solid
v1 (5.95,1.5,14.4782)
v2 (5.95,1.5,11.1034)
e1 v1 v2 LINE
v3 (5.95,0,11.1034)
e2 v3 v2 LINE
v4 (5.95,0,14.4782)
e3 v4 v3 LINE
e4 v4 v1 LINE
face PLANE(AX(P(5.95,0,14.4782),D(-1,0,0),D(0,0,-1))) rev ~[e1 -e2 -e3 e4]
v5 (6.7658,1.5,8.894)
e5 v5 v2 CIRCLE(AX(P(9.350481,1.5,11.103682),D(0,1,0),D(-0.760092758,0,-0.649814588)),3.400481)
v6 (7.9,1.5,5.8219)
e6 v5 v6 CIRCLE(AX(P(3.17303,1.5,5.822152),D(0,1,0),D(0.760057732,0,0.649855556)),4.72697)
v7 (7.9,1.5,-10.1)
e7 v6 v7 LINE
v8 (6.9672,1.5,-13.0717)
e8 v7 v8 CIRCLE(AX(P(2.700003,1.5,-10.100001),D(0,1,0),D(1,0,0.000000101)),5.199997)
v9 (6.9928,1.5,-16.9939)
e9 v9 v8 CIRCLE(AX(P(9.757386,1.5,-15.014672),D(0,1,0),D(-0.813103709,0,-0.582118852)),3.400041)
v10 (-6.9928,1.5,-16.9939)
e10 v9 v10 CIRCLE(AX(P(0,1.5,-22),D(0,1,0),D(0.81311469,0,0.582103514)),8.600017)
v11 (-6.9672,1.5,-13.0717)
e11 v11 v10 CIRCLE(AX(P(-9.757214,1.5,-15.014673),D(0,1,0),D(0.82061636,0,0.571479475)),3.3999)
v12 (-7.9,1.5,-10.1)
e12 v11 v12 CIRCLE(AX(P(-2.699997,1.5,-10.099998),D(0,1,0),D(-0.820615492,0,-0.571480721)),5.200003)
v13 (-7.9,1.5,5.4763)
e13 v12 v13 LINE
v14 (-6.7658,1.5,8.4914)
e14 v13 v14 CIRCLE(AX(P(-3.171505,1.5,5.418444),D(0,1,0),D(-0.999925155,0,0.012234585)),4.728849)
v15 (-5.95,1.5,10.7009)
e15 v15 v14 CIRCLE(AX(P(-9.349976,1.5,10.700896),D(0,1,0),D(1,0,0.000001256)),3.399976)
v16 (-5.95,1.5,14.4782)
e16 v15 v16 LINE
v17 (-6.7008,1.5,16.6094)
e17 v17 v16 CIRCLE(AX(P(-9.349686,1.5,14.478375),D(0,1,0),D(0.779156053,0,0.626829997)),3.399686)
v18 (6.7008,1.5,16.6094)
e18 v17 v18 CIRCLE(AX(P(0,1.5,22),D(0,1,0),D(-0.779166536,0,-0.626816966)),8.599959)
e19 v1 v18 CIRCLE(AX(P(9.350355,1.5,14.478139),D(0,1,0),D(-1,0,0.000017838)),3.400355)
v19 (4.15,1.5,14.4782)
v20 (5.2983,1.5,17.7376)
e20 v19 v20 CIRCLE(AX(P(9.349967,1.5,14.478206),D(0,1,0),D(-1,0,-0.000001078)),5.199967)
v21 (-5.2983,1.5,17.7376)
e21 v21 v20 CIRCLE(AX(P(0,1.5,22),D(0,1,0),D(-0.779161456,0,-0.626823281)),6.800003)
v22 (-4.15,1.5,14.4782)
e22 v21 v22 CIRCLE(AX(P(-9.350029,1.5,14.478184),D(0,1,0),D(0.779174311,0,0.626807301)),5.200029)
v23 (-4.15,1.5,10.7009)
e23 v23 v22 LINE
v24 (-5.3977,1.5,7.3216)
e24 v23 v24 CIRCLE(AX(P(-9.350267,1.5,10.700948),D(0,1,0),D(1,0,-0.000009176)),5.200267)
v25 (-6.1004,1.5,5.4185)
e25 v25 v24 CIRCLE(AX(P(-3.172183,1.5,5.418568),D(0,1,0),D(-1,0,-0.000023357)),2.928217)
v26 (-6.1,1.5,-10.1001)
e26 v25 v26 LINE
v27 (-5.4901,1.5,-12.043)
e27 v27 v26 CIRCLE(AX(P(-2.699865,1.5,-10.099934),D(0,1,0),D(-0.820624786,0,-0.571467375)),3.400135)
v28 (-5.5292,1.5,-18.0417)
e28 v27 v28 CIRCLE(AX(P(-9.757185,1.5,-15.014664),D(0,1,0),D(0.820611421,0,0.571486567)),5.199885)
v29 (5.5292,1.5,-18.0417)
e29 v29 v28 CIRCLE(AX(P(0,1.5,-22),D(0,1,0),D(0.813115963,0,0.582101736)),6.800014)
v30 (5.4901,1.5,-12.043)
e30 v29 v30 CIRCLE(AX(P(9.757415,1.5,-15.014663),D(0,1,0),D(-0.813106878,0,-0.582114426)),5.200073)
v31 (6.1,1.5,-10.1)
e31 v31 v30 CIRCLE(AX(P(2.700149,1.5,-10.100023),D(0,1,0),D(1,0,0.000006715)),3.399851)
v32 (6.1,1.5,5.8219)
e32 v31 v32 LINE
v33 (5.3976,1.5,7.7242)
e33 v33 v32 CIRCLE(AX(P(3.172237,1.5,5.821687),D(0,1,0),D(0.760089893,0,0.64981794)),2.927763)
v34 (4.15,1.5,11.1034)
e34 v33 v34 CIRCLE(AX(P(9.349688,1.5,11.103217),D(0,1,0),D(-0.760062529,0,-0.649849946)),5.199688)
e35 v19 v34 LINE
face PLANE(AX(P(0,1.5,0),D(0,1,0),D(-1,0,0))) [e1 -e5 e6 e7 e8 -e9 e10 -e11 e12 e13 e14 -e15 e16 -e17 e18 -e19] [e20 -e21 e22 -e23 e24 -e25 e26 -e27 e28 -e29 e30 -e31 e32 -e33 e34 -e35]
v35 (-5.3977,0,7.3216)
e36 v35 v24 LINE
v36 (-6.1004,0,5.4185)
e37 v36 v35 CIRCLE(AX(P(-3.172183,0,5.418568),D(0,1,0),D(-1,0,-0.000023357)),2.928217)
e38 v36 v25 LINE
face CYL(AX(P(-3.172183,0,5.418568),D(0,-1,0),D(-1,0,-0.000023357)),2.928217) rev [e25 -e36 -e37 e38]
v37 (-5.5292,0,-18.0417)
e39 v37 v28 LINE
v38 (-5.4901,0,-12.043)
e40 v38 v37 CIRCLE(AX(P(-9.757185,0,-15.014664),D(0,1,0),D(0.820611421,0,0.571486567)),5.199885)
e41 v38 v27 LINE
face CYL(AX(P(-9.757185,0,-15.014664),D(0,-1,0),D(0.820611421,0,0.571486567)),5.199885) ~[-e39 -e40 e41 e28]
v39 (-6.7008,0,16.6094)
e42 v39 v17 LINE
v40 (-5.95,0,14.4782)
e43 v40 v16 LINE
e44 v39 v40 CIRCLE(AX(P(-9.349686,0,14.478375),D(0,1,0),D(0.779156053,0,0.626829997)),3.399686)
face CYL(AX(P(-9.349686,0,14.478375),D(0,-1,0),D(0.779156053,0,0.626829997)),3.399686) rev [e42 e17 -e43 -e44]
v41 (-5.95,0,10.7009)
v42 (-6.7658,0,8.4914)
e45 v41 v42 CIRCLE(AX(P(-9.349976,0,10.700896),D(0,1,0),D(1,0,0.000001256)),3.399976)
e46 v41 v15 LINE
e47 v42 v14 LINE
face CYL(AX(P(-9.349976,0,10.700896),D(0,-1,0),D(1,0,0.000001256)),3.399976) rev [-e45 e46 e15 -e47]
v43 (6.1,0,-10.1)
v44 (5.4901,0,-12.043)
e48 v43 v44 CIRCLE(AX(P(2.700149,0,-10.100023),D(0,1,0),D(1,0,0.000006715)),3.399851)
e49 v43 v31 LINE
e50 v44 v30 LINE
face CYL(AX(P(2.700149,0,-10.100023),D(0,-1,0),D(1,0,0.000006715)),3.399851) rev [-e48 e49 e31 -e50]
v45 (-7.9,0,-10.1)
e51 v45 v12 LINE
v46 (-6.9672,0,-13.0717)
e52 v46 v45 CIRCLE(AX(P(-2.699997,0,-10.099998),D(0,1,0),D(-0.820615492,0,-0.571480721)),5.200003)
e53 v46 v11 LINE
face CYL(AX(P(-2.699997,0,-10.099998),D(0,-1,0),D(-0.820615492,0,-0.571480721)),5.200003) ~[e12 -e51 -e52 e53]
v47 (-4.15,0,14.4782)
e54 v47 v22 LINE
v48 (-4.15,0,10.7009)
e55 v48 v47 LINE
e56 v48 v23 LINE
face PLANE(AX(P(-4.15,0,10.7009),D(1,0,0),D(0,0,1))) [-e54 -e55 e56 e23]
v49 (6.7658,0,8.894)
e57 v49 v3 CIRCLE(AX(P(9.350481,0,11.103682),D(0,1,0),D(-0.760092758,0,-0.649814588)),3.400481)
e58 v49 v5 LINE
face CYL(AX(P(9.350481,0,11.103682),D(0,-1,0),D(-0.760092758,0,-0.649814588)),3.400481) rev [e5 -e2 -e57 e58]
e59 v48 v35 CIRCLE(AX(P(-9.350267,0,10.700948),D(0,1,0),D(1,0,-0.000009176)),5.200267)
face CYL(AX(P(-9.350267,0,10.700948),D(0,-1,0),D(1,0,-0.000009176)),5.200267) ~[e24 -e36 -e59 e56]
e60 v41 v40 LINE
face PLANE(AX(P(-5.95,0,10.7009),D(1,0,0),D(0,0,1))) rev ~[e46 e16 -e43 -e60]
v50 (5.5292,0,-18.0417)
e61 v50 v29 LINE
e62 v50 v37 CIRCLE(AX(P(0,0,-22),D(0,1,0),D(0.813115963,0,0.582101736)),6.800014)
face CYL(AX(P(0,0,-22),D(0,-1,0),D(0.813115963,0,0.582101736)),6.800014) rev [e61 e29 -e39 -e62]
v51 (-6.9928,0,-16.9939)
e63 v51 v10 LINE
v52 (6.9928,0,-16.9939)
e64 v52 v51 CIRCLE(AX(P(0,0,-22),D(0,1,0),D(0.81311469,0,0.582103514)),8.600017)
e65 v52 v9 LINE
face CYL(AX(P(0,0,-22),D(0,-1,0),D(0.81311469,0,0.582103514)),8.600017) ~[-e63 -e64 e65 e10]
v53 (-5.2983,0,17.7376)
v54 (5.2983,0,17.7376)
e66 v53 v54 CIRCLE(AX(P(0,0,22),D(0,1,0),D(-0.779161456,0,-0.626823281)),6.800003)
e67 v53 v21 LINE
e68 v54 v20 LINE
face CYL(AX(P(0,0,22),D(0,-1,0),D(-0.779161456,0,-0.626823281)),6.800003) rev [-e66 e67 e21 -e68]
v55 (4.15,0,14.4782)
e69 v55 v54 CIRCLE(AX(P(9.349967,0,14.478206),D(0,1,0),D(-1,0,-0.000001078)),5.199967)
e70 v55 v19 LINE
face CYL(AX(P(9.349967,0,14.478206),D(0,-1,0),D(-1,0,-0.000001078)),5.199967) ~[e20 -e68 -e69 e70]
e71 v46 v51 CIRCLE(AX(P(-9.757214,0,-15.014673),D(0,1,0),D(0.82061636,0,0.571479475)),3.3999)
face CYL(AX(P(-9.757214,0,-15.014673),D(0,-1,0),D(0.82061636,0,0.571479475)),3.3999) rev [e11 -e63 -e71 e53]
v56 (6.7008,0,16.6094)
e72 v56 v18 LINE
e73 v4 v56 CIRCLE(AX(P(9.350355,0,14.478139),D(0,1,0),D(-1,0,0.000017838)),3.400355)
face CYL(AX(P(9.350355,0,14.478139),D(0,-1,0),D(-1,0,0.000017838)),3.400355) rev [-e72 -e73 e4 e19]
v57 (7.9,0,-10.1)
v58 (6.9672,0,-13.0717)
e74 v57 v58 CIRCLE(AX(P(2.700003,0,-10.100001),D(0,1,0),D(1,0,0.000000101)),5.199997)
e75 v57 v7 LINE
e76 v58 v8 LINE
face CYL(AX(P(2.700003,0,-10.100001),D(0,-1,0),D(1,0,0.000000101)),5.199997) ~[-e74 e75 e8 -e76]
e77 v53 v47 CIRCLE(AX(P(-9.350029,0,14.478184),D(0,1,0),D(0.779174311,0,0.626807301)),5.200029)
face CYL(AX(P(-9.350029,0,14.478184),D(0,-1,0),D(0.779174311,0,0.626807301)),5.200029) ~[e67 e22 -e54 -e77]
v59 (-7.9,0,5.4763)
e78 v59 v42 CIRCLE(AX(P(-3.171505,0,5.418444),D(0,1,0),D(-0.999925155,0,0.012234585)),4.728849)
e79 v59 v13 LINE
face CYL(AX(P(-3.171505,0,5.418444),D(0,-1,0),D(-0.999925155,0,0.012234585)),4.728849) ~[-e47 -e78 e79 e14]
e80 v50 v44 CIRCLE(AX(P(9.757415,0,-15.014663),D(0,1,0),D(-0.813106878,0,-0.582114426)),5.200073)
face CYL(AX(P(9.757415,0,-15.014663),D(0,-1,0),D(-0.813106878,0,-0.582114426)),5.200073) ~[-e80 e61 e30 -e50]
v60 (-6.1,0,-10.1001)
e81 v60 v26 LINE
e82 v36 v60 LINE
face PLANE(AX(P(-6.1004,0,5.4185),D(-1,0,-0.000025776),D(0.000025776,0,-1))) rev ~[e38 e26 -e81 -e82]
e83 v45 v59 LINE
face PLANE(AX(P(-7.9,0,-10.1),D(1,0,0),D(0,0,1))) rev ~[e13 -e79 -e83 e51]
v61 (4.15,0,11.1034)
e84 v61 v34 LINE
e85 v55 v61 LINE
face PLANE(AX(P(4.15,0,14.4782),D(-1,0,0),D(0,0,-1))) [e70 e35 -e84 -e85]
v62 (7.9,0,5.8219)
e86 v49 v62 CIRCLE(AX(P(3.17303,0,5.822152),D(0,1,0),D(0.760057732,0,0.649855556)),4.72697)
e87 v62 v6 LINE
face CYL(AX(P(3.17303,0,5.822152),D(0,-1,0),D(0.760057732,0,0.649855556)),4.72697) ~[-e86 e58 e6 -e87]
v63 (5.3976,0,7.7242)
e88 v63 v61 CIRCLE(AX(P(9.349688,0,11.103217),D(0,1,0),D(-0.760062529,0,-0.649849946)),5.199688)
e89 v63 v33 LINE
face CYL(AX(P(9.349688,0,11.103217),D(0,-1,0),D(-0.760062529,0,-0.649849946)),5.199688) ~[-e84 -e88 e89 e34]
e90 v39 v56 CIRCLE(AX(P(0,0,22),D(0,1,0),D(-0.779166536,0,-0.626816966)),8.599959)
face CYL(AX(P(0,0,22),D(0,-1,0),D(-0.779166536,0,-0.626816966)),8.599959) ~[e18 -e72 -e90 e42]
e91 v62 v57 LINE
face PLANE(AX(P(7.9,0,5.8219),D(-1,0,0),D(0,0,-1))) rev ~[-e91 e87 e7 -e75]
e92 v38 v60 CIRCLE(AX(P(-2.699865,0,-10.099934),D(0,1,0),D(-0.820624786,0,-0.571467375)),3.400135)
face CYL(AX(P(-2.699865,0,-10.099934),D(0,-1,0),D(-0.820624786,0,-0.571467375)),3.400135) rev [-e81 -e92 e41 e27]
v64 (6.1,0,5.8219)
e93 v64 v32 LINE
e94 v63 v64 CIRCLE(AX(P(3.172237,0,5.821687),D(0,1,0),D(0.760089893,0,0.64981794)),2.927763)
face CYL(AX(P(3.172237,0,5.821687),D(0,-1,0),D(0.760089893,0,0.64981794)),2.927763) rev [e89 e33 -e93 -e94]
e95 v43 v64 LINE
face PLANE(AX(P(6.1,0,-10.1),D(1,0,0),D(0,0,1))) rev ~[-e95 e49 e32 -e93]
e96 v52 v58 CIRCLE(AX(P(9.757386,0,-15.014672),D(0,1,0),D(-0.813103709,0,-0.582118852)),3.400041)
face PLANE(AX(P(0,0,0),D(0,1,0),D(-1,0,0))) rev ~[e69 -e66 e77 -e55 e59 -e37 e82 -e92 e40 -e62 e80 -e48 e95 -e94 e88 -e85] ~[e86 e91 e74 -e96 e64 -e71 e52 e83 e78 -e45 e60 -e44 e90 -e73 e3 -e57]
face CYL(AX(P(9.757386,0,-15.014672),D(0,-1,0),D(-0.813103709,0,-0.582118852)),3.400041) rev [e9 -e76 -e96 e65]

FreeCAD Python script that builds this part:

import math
import FreeCAD as App
import Part
import Sketcher

V = App.Vector

doc = App.newDocument("Part")
body = doc.addObject("PartDesign::Body", "Body")

# Sketch on XZ plane
sketch1 = body.newObject("Sketcher::SketchObject", "Sketch")
sketch1.AttachmentSupport = (doc.getObject("XZ_Plane"), [""])
sketch1.MapMode = "FlatFace"
sketch1.addGeometry([
    Part.ArcOfCircle(Part.Circle(V(9.35, 14.4782, 0), V(0, 0, 1), 3.4), math.radians(141.184391), math.radians(180)),  # 0
    Part.LineSegment(V(5.95, 14.4782, 0), V(5.95, 11.1034, 0)),  # 1
    Part.ArcOfCircle(Part.Circle(V(9.35, 11.1034, 0), V(0, 0, 1), 3.399932), math.radians(180), math.radians(220.529277)),  # 2
    Part.ArcOfCircle(Part.Circle(V(3.1726, 5.8219, 0), V(0, 0, 1), 4.727461), math.radians(0), math.radians(40.52965)),  # 3
    Part.LineSegment(V(7.9, 5.8219, 0), V(7.9, -10.1, 0)),  # 4
    Part.ArcOfCircle(Part.Circle(V(2.7, -10.1, 0), V(0, 0, 1), 5.2), math.radians(-34.853551), math.radians(0)),  # 5
    Part.ArcOfCircle(Part.Circle(V(9.7573, -15.0147, 0), V(0, 0, 1), 3.399955), math.radians(145.147001), math.radians(215.60017)),  # 6
    Part.ArcOfCircle(Part.Circle(V(0, -22, 0), V(0, 0, 1), 8.600017), math.radians(144.401371), math.radians(395.598629)),  # 7
    Part.ArcOfCircle(Part.Circle(V(-9.7573, -15.0147, 0), V(0, 0, 1), 3.399986), math.radians(-35.60017), math.radians(34.852999)),  # 8
    Part.ArcOfCircle(Part.Circle(V(-2.7, -10.1, 0), V(0, 0, 1), 5.2), math.radians(180), math.radians(214.853551)),  # 9
    Part.LineSegment(V(-7.9, -10.1, 0), V(-7.9, 5.4763, 0)),  # 10
    Part.ArcOfCircle(Part.Circle(V(-3.1718, 5.4185, 0), V(0, 0, 1), 4.728553), math.radians(139.469281), math.radians(179.299621)),  # 11
    Part.ArcOfCircle(Part.Circle(V(-9.35, 10.7009, 0), V(0, 0, 1), 3.4), math.radians(-40.530558), math.radians(0)),  # 12
    Part.LineSegment(V(-5.95, 10.7009, 0), V(-5.95, 14.4782, 0)),  # 13
    Part.ArcOfCircle(Part.Circle(V(-9.35, 14.4782, 0), V(0, 0, 1), 3.40004), math.radians(0), math.radians(38.815609)),  # 14
    Part.ArcOfCircle(Part.Circle(V(0, 22, 0), V(0, 0, 1), 8.599959), math.radians(-38.815673), math.radians(218.815673)),  # 15
    Part.ArcOfCircle(Part.Circle(V(0, 22, 0), V(0, 0, 1), 6.800003), math.radians(-38.816137), math.radians(218.816137)),  # 16
    Part.ArcOfCircle(Part.Circle(V(-9.35, 14.4782, 0), V(0, 0, 1), 5.199996), math.radians(0), math.radians(38.815024)),  # 17
    Part.LineSegment(V(-4.15, 14.4782, 0), V(-4.15, 10.7009, 0)),  # 18
    Part.ArcOfCircle(Part.Circle(V(-9.35, 10.7009, 0), V(0, 0, 1), 5.2), math.radians(-40.531142), math.radians(0)),  # 19
    Part.ArcOfCircle(Part.Circle(V(-3.1718, 5.4185, 0), V(0, 0, 1), 2.9286), math.radians(139.470219), math.radians(180)),  # 20
    Part.LineSegment(V(-6.1004, 5.4185, 0), V(-6.1, -10.1001, 0)),  # 21
    Part.ArcOfCircle(Part.Circle(V(-2.7, -10.1, 0), V(0, 0, 1), 3.399986), math.radians(-179.998315), math.radians(-145.147001)),  # 22
    Part.ArcOfCircle(Part.Circle(V(-9.7573, -15.0147, 0), V(0, 0, 1), 5.2), math.radians(-35.5998), math.radians(34.853551)),  # 23
    Part.ArcOfCircle(Part.Circle(V(0, -22, 0), V(0, 0, 1), 6.800014), math.radians(144.401496), math.radians(395.598504)),  # 24
    Part.ArcOfCircle(Part.Circle(V(9.7573, -15.0147, 0), V(0, 0, 1), 5.199958), math.radians(145.146449), math.radians(215.5998)),  # 25
    Part.ArcOfCircle(Part.Circle(V(2.7, -10.1, 0), V(0, 0, 1), 3.4), math.radians(-34.852999), math.radians(0)),  # 26
    Part.LineSegment(V(6.1, -10.1, 0), V(6.1, 5.8219, 0)),  # 27
    Part.ArcOfCircle(Part.Circle(V(3.1726, 5.8219, 0), V(0, 0, 1), 2.927349), math.radians(0), math.radians(40.529327)),  # 28
    Part.ArcOfCircle(Part.Circle(V(9.35, 11.1034, 0), V(0, 0, 1), 5.200044), math.radians(180), math.radians(220.529588)),  # 29
    Part.LineSegment(V(4.15, 11.1034, 0), V(4.15, 14.4782, 0)),  # 30
    Part.ArcOfCircle(Part.Circle(V(9.35, 14.4782, 0), V(0, 0, 1), 5.2), math.radians(141.184976), math.radians(180)),  # 31
], False)
sketch1.addConstraint([
    Sketcher.Constraint("Coincident", 0, 2, 1, 1),
    Sketcher.Constraint("Coincident", 1, 2, 2, 1),
    Sketcher.Constraint("Coincident", 2, 2, 3, 2),
    Sketcher.Constraint("Coincident", 3, 1, 4, 1),
    Sketcher.Constraint("Coincident", 4, 2, 5, 2),
    Sketcher.Constraint("Coincident", 5, 1, 6, 1),
    Sketcher.Constraint("Coincident", 6, 2, 7, 2),
    Sketcher.Constraint("Coincident", 7, 1, 8, 1),
    Sketcher.Constraint("Coincident", 8, 2, 9, 2),
    Sketcher.Constraint("Coincident", 9, 1, 10, 1),
    Sketcher.Constraint("Coincident", 10, 2, 11, 2),
    Sketcher.Constraint("Coincident", 11, 1, 12, 1),
    Sketcher.Constraint("Coincident", 12, 2, 13, 1),
    Sketcher.Constraint("Coincident", 13, 2, 14, 1),
    Sketcher.Constraint("Coincident", 14, 2, 15, 2),
    Sketcher.Constraint("Coincident", 15, 1, 0, 1),
    Sketcher.Constraint("Coincident", 16, 2, 17, 2),
    Sketcher.Constraint("Coincident", 17, 1, 18, 1),
    Sketcher.Constraint("Coincident", 18, 2, 19, 2),
    Sketcher.Constraint("Coincident", 19, 1, 20, 1),
    Sketcher.Constraint("Coincident", 20, 2, 21, 1),
    Sketcher.Constraint("Coincident", 21, 2, 22, 1),
    Sketcher.Constraint("Coincident", 22, 2, 23, 2),
    Sketcher.Constraint("Coincident", 23, 1, 24, 1),
    Sketcher.Constraint("Coincident", 24, 2, 25, 2),
    Sketcher.Constraint("Coincident", 25, 1, 26, 1),
    Sketcher.Constraint("Coincident", 26, 2, 27, 1),
    Sketcher.Constraint("Coincident", 27, 2, 28, 1),
    Sketcher.Constraint("Coincident", 28, 2, 29, 2),
    Sketcher.Constraint("Coincident", 29, 1, 30, 1),
    Sketcher.Constraint("Coincident", 30, 2, 31, 2),
    Sketcher.Constraint("Coincident", 31, 1, 16, 1),
    Sketcher.Constraint("Vertical", 1),
    Sketcher.Constraint("Vertical", 4),
    Sketcher.Constraint("Vertical", 10),
    Sketcher.Constraint("Vertical", 13),
    Sketcher.Constraint("Vertical", 18),
    Sketcher.Constraint("Vertical", 27),
    Sketcher.Constraint("Vertical", 30),
    Sketcher.Constraint("Coincident", 16, 3, 15, 3),
    Sketcher.Constraint("Coincident", 17, 3, 14, 3),
    Sketcher.Constraint("Coincident", 19, 3, 12, 3),
    Sketcher.Constraint("Coincident", 20, 3, 11, 3),
    Sketcher.Constraint("Coincident", 22, 3, 9, 3),
    Sketcher.Constraint("Coincident", 23, 3, 8, 3),
    Sketcher.Constraint("Coincident", 24, 3, 7, 3),
    Sketcher.Constraint("Coincident", 25, 3, 6, 3),
    Sketcher.Constraint("Coincident", 26, 3, 5, 3),
    Sketcher.Constraint("Coincident", 28, 3, 3, 3),
    Sketcher.Constraint("Coincident", 29, 3, 2, 3),
    Sketcher.Constraint("Coincident", 31, 3, 0, 3),
    Sketcher.Constraint("PointOnObject", 7, 3, -2),
    Sketcher.Constraint("PointOnObject", 15, 3, -2),
    Sketcher.Constraint("Radius", 0, 3.4),
    Sketcher.Constraint("Radius", 2, 3.4),
    Sketcher.Constraint("Radius", 5, 5.2),
    Sketcher.Constraint("Radius", 6, 3.4),
    Sketcher.Constraint("Radius", 7, 8.6),
    Sketcher.Constraint("Radius", 8, 3.4),
    Sketcher.Constraint("Radius", 9, 5.2),
    Sketcher.Constraint("Radius", 12, 3.4),
    Sketcher.Constraint("Radius", 14, 3.4),
    Sketcher.Constraint("Radius", 15, 8.6),
    Sketcher.Constraint("Radius", 16, 6.8),
    Sketcher.Constraint("DistanceY", 7, 3, -1, 1, 22.0),
    Sketcher.Constraint("DistanceY", -1, 1, 15, 3, 22.0),
    Sketcher.Constraint("DistanceX", -1, 1, 5, 3, 2.7),
    Sketcher.Constraint("DistanceY", 5, 3, -1, 1, 10.1),
    Sketcher.Constraint("DistanceX", 9, 3, -1, 1, 2.7),
    Sketcher.Constraint("DistanceY", 9, 3, -1, 1, 10.1),
    Sketcher.Constraint("DistanceY", 4, 2, -1, 1, 10.1),
    Sketcher.Constraint("DistanceY", 9, 1, -1, 1, 10.1),
    Sketcher.Constraint("DistanceY", 21, 2, -1, 1, 10.1),
    Sketcher.Constraint("DistanceY", 26, 2, -1, 1, 10.1),
    Sketcher.Constraint("Radius", 3, 4.7275),
    Sketcher.Constraint("Radius", 11, 4.7286),
    Sketcher.Constraint("DistanceX", 12, 3, 2, 3, 18.7),
    Sketcher.Constraint("DistanceY", 4, 2, 4, 1, 15.922),
    Sketcher.Constraint("DistanceY", 27, 1, 27, 2, 15.922),
    Sketcher.Constraint("DistanceX", -1, 1, 0, 3, 9.35),
    Sketcher.Constraint("DistanceX", 22, 2, -1, 1, 5.49),
    Sketcher.Constraint("DistanceX", 5, 1, 6, 3, 2.79),
    Sketcher.Constraint("DistanceX", 8, 3, 8, 2, 2.79),
    Sketcher.Constraint("DistanceY", 23, 1, 8, 2, 4.97),
    Sketcher.Constraint("DistanceY", 24, 2, 5, 1, 4.97),
    Sketcher.Constraint("DistanceY", 1, 2, 1, 1, 3.3748),
    Sketcher.Constraint("DistanceY", 10, 1, 10, 2, 15.5763),
    Sketcher.Constraint("DistanceY", 13, 1, 13, 2, 3.7773),
    Sketcher.Constraint("DistanceY", 18, 2, 18, 1, 3.7773),
    Sketcher.Constraint("DistanceY", 30, 1, 30, 2, 3.3748),
    Sketcher.Constraint("DistanceY", -1, 1, 3, 3, 5.822),
    Sketcher.Constraint("DistanceY", -1, 1, 12, 3, 10.701),
    Sketcher.Constraint("DistanceY", -1, 1, 2, 2, 8.894),
    Sketcher.Constraint("DistanceY", 6, 2, -1, 1, 16.994),
    Sketcher.Constraint("DistanceY", 7, 1, -1, 1, 16.994),
    Sketcher.Constraint("DistanceY", -1, 1, 12, 2, 10.701),
    Sketcher.Constraint("DistanceY", -1, 1, 18, 2, 10.701),
    Sketcher.Constraint("DistanceY", 25, 1, -1, 1, 12.043),
    Sketcher.Constraint("DistanceY", 10, 2, 11, 1, 3.015),
    Sketcher.Constraint("DistanceY", 1, 2, 15, 1, 5.506),
    Sketcher.Constraint("DistanceY", 2, 3, 15, 1, 5.506),
    Sketcher.Constraint("DistanceX", 11, 1, 19, 1, 1.368),
    Sketcher.Constraint("DistanceX", 3, 3, 28, 2, 2.225),
    Sketcher.Constraint("Distance", 21, 15.5186),
    Sketcher.Constraint("DistanceX", 14, 2, -1, 1, 6.7008),
    Sketcher.Constraint("DistanceX", 16, 2, -1, 1, 5.2983),
    Sketcher.Constraint("DistanceY", -1, 1, 29, 1, 11.1034),
    Sketcher.Constraint("DistanceX", -1, 1, 31, 1, 5.2983),
])
pad1 = body.newObject("PartDesign::Pad", "Pad")
pad1.Profile = sketch1
pad1.Length = 1.5
pad1.Reversed = True

doc.recompute()
